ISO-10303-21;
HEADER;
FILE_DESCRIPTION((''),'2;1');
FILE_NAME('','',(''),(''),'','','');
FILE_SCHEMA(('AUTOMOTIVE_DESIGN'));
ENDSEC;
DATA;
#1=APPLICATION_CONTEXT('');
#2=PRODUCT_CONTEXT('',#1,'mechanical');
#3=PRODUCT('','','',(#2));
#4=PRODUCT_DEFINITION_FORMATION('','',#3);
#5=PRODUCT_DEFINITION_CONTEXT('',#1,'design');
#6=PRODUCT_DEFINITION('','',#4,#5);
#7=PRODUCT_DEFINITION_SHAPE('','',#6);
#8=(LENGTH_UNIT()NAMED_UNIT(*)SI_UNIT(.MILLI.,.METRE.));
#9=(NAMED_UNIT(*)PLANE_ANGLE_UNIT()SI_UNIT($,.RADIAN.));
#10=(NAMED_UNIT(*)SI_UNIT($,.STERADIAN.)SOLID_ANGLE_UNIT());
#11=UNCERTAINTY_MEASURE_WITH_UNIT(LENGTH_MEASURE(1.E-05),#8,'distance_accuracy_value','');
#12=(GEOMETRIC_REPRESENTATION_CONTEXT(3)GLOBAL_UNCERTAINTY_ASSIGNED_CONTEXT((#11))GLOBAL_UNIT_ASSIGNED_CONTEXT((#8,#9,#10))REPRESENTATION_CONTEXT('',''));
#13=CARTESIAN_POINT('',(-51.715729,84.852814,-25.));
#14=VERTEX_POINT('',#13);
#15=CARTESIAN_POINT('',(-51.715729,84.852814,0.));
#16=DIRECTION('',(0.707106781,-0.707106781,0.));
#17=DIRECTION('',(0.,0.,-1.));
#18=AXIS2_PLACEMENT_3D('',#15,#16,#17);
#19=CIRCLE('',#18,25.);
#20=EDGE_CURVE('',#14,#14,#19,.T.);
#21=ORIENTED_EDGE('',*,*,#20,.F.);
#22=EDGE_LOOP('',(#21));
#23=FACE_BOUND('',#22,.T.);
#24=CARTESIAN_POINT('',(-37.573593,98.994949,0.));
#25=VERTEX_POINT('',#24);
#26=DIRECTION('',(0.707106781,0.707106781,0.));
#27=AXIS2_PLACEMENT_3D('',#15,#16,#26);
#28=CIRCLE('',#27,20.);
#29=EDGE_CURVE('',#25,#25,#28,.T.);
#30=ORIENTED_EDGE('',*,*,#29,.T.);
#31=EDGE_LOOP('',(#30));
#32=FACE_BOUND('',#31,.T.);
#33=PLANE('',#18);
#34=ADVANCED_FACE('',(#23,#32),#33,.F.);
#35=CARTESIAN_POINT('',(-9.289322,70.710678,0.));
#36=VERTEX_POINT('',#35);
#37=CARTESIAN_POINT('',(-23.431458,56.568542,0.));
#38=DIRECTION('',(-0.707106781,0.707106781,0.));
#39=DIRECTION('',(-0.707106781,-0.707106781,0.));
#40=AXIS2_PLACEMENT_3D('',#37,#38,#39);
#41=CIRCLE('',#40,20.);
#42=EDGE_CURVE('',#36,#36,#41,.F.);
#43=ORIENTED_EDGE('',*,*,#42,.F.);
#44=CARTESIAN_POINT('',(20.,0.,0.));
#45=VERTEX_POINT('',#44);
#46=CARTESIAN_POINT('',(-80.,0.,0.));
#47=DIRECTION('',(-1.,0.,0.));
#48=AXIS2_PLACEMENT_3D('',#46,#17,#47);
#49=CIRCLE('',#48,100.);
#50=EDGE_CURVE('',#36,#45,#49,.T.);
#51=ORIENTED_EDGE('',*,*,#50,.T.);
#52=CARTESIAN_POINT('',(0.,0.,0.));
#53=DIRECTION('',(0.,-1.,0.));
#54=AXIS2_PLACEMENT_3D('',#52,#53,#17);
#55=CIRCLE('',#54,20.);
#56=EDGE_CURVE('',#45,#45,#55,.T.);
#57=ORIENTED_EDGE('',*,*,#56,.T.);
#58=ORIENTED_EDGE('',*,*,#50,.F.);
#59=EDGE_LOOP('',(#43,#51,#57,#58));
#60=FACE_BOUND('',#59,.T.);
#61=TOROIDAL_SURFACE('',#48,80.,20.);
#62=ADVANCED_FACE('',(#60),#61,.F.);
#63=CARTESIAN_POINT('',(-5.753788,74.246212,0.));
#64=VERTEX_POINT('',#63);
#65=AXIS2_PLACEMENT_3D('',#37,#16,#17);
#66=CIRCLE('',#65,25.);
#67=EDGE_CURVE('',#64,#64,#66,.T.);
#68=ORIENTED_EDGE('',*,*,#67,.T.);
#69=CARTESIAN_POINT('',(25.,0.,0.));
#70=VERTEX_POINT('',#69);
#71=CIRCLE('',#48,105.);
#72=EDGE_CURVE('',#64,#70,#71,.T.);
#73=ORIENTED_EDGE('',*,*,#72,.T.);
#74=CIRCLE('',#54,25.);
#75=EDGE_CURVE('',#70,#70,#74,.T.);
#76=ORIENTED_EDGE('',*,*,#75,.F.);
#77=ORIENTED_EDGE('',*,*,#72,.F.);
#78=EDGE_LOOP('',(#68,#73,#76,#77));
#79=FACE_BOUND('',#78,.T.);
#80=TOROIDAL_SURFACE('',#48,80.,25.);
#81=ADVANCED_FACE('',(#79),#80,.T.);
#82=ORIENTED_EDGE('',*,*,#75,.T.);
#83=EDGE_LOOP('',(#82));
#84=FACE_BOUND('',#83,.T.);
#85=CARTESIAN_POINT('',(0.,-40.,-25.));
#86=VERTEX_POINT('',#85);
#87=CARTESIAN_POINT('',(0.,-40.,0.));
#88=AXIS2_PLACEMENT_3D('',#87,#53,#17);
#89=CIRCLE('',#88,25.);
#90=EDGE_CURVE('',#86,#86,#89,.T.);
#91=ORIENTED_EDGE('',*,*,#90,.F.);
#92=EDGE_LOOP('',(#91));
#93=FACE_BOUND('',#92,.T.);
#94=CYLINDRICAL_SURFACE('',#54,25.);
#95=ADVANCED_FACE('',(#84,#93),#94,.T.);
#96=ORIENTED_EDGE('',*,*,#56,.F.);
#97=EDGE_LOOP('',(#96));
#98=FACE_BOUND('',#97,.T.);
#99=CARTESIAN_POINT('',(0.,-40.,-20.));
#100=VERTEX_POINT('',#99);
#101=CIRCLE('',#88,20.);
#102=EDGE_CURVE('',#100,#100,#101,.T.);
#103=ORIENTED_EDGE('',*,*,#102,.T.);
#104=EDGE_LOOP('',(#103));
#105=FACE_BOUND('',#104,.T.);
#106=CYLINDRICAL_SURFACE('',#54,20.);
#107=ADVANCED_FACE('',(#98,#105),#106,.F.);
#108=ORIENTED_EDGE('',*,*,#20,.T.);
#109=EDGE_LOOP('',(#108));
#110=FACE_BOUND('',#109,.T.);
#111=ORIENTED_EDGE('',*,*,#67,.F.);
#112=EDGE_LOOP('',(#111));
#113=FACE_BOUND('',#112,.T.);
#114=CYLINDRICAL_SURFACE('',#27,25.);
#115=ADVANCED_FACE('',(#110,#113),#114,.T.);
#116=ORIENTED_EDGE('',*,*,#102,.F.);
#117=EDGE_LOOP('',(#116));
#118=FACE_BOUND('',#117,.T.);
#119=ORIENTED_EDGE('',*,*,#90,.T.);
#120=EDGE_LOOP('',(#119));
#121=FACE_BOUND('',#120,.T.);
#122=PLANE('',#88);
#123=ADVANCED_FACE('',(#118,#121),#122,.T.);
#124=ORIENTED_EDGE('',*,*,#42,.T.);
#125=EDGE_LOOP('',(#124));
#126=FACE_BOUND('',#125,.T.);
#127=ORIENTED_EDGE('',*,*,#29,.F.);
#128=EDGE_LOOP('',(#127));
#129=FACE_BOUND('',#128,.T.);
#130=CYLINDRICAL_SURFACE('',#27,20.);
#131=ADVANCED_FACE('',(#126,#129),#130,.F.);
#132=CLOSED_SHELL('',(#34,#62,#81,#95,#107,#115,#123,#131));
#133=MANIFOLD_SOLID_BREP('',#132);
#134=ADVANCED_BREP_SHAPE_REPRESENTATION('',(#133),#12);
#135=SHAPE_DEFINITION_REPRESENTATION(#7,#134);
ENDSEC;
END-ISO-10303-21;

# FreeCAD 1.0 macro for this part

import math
import FreeCAD as App
import Part
import Sketcher
from FreeCAD import Vector
Q = App.Units.Quantity


def faces_at(feature, points):
    """Names of the faces that lie closest to the given points."""
    faces = feature.Shape.Faces
    near = lambda p: min(range(len(faces)), key=lambda i: faces[i].distToShape(Part.Vertex(*p))[0])
    return sorted({f"Face{near(p) + 1}" for p in points})

doc = App.newDocument("Part")
body = doc.addObject("PartDesign::Body", "Body")

sketch1 = body.newObject("Sketcher::SketchObject", "Sketch")
sketch1.AttachmentSupport = (doc.getObject("XZ_Plane"), [""])
sketch1.MapMode = "FlatFace"
sketch1.AttachmentOffset = App.Placement(Vector(0, 0, 40), App.Rotation())
sketch1.addGeometry(Part.Circle(Vector(0, 0, 0), Vector(0, 0, 1), 25), False)
sketch1.addConstraint([
    Sketcher.Constraint("Coincident", 0, 3, -1, 1),
    Sketcher.Constraint("Diameter", 0, 50.0),
])

sketch2 = body.newObject("Sketcher::SketchObject", "Sketch001")
sketch2.AttachmentSupport = (doc.getObject("XY_Plane"), [""])
sketch2.MapMode = "FlatFace"
sketch2.addGeometry([
    Part.LineSegment(Vector(-52, 85, 0), Vector(-23, 57, 0)),
    Part.ArcOfCircle(Part.Circle(Vector(-80, 0, 0), Vector(0, 0, 1), 80), math.radians(0), math.radians(45)),
    Part.LineSegment(Vector(0, 0, 0), Vector(0, -40, 0)),
], False)
sketch2.addConstraint([
    Sketcher.Constraint("Tangent", 0, 2, 1, 2),
    Sketcher.Constraint("Tangent", 1, 1, 2, 1),
    Sketcher.Constraint("Vertical", 2),
    Sketcher.Constraint("Coincident", 1, 1, -1, 1),
    Sketcher.Constraint("Radius", 1, 80.0),
    Sketcher.Constraint("DistanceY", 2, 2, 2, 1, 40.0),
    Sketcher.Constraint("Angle", 0, Q("-45 deg")),
    Sketcher.Constraint("Distance", 0, 40.0),
])
doc.recompute()

additivepipe = body.newObject("PartDesign::AdditivePipe", "AdditivePipe")
additivepipe.Profile = sketch1
additivepipe.Spine = (sketch2, ["Edge1", "Edge2", "Edge3"])
doc.recompute()

thickness = body.newObject("PartDesign::Thickness", "Thickness")
thickness.Base = (additivepipe, faces_at(additivepipe, [(0, -40, 0), (-51.716, 84.853, 0)]))
thickness.Value = 5
thickness.Reversed = True
thickness.Join = "Intersection"

doc.recompute()
